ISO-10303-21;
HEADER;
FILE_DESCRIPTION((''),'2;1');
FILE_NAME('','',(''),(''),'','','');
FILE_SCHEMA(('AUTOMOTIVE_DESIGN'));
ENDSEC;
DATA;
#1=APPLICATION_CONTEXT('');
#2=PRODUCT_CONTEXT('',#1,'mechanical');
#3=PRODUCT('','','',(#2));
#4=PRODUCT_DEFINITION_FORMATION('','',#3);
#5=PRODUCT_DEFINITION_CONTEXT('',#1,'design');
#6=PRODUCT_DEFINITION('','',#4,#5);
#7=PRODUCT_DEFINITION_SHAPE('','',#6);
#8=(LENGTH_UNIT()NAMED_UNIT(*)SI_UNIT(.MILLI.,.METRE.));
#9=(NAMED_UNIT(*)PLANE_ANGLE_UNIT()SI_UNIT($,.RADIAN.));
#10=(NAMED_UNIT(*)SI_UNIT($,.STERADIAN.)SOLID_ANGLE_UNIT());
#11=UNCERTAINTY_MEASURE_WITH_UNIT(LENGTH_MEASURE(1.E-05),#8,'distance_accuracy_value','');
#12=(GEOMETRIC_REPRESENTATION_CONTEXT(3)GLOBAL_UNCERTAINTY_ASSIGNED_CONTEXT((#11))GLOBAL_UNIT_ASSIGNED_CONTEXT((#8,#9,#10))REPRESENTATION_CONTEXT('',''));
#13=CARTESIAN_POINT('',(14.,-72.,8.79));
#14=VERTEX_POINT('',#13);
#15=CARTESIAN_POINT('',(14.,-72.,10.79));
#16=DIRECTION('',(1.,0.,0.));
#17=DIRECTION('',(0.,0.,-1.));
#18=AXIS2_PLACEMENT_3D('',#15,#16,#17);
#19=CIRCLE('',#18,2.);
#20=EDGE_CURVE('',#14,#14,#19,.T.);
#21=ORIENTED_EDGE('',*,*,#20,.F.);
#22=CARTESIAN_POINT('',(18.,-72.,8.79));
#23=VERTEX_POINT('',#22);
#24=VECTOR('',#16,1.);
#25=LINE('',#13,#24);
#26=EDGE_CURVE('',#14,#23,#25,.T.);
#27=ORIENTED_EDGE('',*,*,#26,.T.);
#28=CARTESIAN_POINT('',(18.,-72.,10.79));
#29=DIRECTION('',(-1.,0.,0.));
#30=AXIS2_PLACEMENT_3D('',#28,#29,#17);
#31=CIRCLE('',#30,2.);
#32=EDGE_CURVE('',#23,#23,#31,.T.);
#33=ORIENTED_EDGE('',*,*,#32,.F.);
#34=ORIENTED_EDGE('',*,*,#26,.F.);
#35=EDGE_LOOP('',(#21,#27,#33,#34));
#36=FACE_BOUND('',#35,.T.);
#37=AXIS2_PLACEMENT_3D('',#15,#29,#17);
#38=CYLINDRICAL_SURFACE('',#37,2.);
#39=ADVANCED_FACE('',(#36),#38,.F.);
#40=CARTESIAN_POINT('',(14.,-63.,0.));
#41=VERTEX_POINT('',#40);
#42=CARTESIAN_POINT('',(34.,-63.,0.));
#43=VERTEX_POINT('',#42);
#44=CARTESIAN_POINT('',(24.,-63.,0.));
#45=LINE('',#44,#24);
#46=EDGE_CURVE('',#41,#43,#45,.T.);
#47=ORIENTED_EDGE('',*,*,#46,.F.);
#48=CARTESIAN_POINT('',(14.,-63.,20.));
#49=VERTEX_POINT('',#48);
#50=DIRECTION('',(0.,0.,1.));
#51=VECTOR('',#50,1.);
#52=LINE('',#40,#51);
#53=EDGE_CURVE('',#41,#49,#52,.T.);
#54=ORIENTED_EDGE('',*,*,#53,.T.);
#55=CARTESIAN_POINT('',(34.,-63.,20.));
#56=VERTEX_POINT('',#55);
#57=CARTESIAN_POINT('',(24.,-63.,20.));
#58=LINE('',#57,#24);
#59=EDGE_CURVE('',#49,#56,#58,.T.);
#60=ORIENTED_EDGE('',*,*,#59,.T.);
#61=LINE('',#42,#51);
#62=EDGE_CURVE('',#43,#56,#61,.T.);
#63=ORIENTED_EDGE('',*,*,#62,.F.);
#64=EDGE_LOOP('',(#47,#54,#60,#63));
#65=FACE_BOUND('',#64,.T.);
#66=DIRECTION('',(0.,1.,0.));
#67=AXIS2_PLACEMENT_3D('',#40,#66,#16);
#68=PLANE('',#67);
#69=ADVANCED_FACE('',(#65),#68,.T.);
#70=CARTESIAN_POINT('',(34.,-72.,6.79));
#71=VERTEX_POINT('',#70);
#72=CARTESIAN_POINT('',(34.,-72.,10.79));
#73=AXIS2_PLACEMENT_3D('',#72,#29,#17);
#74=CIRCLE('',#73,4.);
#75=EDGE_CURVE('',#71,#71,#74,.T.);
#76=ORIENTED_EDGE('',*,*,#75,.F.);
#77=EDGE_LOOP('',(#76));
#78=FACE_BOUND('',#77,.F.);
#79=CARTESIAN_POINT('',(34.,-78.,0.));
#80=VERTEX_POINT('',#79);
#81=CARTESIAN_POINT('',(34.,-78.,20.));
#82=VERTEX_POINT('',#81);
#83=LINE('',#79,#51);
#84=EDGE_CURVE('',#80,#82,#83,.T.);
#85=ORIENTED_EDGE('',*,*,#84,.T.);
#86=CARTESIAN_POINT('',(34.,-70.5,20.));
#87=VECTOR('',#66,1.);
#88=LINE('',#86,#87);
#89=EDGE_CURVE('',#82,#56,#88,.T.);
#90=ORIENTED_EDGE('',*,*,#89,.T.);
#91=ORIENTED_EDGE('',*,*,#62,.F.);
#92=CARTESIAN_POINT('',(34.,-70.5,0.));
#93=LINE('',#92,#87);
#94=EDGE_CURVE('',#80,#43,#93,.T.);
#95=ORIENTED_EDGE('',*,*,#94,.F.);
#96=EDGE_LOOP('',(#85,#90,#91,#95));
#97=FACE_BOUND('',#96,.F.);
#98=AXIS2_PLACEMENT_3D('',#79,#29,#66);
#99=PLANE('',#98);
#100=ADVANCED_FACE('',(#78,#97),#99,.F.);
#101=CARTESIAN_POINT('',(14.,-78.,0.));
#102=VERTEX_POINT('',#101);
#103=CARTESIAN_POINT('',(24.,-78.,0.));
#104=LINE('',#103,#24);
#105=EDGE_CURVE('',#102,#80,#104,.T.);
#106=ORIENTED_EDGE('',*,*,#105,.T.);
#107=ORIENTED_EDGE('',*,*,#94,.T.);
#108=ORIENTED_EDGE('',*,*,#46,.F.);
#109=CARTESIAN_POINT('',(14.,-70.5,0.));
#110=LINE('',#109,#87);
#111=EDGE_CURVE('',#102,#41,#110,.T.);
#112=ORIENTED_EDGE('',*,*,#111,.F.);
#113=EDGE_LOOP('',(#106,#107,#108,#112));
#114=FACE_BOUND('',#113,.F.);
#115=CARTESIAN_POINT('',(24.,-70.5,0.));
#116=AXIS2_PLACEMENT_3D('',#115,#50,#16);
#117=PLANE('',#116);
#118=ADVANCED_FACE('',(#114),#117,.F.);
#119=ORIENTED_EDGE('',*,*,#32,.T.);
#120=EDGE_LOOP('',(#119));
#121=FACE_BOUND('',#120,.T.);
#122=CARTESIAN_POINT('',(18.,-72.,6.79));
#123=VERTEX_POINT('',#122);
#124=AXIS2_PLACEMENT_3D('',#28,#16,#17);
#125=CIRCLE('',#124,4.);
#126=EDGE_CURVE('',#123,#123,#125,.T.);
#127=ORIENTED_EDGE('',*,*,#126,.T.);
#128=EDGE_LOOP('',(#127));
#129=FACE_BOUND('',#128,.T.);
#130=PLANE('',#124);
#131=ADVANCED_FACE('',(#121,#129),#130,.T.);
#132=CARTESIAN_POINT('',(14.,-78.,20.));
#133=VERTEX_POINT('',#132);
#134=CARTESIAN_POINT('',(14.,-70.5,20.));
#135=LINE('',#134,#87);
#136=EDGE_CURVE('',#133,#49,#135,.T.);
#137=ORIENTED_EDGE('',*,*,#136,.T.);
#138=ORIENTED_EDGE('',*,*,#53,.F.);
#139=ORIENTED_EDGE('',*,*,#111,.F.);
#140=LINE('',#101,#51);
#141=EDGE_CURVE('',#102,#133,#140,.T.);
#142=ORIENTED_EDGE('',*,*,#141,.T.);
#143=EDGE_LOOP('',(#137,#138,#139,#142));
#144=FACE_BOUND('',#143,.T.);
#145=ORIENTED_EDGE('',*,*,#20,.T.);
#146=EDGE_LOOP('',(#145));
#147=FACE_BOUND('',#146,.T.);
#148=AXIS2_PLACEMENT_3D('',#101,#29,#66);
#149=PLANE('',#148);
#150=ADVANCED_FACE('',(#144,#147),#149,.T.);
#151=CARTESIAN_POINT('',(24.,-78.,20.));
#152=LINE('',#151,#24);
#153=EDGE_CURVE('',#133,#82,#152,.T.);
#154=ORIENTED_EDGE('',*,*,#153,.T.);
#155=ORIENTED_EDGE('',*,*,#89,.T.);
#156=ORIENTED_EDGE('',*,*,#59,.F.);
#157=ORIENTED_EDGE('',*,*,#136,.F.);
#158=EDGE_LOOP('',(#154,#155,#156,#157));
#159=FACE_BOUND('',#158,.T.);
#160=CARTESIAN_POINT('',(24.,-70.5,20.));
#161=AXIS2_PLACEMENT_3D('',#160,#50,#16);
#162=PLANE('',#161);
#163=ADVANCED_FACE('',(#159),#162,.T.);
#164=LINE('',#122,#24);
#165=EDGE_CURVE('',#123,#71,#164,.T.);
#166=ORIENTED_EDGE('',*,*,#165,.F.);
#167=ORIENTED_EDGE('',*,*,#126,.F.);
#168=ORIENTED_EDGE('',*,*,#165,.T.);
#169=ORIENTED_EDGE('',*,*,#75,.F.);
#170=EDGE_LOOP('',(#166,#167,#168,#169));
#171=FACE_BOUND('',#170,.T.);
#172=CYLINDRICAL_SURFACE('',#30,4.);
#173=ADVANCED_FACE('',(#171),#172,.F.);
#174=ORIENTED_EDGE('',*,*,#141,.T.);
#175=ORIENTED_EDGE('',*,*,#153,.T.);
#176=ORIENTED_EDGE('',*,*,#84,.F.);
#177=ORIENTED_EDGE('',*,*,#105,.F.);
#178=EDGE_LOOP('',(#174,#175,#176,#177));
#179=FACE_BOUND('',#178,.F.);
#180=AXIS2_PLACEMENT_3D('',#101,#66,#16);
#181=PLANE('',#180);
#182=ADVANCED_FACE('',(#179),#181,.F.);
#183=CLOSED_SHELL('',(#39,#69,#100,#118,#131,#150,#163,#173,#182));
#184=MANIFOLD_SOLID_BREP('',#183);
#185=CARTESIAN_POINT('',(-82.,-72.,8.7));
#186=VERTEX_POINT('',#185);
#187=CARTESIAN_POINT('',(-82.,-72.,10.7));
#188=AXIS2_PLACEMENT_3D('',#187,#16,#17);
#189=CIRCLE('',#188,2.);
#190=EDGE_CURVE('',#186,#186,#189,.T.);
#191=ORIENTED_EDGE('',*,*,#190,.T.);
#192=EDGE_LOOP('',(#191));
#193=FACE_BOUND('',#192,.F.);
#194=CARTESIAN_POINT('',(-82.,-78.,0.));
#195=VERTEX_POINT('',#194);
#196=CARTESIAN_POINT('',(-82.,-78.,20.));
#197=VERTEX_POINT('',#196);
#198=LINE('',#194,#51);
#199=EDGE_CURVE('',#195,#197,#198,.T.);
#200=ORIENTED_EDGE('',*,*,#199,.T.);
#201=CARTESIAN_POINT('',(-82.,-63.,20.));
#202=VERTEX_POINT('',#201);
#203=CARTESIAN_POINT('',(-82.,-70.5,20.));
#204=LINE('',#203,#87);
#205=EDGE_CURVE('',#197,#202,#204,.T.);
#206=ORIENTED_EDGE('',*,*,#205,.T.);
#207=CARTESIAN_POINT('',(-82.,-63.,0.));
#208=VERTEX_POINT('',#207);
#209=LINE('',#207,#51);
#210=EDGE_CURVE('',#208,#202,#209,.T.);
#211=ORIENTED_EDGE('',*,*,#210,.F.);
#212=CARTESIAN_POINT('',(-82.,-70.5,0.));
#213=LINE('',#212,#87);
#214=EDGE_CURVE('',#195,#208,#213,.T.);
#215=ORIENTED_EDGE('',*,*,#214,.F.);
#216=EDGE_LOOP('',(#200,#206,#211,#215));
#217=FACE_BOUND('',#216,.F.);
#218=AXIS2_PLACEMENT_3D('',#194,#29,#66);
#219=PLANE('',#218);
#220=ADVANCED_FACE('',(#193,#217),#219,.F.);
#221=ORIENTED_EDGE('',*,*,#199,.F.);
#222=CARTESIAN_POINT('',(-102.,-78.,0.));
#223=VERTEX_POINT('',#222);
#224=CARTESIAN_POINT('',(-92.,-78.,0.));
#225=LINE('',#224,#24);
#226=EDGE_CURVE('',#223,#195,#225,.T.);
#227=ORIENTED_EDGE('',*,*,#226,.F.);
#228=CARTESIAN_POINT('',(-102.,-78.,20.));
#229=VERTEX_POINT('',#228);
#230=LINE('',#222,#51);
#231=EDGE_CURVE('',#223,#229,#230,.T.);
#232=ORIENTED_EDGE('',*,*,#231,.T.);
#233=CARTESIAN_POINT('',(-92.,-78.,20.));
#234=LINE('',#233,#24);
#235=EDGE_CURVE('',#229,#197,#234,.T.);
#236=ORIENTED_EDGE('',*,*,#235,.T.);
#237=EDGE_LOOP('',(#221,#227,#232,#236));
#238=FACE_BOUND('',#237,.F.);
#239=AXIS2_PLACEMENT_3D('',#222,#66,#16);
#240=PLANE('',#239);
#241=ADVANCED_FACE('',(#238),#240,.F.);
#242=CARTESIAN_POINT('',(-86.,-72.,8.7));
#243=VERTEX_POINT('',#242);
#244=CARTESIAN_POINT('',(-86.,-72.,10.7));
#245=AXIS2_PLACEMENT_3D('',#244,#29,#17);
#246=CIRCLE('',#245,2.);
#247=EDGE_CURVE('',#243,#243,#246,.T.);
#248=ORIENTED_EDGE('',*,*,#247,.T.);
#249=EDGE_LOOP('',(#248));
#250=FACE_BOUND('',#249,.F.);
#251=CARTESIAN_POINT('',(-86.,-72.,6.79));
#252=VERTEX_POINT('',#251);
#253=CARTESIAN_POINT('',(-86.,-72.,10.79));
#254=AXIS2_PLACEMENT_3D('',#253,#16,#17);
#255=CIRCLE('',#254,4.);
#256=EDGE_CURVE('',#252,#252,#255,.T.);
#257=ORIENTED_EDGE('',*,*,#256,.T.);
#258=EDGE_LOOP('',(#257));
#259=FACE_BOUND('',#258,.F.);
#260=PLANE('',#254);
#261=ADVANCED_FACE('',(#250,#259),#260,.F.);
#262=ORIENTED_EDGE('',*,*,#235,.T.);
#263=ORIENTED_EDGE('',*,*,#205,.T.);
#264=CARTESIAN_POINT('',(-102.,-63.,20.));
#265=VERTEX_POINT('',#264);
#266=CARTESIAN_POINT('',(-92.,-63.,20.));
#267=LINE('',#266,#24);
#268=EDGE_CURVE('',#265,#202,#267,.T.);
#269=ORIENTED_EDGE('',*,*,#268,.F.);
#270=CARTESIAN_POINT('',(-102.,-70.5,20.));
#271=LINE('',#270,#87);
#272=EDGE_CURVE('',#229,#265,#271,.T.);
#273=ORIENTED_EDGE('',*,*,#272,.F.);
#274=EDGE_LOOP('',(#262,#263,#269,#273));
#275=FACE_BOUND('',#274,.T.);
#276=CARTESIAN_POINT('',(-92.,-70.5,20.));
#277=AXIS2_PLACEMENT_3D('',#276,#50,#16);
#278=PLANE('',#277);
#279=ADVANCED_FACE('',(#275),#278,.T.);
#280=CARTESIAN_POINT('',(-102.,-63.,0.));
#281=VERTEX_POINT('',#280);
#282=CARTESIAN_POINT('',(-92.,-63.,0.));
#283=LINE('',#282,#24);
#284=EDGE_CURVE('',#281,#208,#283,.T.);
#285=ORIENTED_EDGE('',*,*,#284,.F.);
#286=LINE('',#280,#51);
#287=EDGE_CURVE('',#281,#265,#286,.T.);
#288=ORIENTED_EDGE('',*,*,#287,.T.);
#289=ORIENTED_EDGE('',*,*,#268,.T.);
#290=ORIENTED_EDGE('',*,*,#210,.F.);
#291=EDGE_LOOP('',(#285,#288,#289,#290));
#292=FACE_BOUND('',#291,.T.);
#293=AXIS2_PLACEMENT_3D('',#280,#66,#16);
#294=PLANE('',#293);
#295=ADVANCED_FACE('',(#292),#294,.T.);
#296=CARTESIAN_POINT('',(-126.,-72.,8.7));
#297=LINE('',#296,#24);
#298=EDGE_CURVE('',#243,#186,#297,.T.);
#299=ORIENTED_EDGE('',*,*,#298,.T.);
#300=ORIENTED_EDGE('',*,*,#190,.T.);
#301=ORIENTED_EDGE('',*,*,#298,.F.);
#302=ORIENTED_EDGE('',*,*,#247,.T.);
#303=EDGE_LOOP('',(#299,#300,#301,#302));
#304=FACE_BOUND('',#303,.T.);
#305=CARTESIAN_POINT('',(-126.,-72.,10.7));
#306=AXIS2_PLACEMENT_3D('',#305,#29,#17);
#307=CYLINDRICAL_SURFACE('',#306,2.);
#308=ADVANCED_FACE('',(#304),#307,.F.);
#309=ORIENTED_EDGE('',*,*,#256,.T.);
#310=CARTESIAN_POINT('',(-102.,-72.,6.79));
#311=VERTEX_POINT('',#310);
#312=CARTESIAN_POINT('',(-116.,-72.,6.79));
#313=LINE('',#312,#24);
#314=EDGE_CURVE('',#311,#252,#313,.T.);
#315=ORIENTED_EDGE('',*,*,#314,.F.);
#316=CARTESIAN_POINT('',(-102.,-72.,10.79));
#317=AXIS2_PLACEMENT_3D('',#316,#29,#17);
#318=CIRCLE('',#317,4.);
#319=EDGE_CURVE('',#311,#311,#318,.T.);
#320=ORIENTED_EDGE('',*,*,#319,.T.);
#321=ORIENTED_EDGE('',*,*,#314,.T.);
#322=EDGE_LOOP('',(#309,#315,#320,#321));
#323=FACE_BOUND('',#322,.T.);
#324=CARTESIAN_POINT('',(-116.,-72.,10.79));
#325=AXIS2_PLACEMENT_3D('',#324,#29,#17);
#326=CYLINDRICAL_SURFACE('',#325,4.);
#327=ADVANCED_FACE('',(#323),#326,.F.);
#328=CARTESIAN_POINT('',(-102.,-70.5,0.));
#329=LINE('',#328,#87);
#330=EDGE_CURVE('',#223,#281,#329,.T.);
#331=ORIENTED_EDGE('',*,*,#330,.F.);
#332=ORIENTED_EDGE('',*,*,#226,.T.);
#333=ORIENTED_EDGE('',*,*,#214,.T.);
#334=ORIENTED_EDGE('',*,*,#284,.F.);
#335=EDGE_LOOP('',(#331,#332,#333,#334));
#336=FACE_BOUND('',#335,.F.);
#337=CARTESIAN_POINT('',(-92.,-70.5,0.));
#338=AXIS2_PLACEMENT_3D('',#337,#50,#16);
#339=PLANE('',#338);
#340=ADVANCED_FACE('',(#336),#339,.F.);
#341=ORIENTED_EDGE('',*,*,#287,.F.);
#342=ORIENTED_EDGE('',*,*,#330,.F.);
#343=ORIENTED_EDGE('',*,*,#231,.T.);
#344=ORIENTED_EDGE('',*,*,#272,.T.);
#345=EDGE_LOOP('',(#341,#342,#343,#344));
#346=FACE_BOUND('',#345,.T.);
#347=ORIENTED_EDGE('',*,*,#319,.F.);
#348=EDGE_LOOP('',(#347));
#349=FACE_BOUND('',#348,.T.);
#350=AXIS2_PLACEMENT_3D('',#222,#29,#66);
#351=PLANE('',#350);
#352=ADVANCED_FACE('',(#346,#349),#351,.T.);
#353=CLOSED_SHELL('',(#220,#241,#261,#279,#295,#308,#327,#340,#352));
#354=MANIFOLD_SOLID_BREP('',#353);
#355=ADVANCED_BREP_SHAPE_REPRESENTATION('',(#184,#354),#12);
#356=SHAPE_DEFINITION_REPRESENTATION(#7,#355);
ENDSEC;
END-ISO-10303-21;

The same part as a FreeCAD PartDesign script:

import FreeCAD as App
import Part
import Sketcher
Q = App.Units.Quantity

doc = App.newDocument("Part")
body = doc.addObject("PartDesign::Body", "Body")

sketch1 = body.newObject("Sketcher::SketchObject", "Sketch")
sketch1.AttachmentSupport = (doc.getObject("YZ_Plane"), [""])
sketch1.MapMode = "FlatFace"
sketch1.AttachmentOffset = App.Placement(App.Vector(0, 0, -126), App.Rotation())
sketch1.addGeometry(Part.Circle(App.Vector(-72, 10.7, 0), App.Vector(0, 0, 1), 2), False)
sketch1.addConstraint([
    Sketcher.Constraint("Diameter", 0, Q("4 mm")),
    Sketcher.Constraint("DistanceX", 0, 3, -1, 1, Q("72 mm")),
    Sketcher.Constraint("DistanceY", -1, 1, 0, 3, Q("10.7 mm")),
])
pad1 = body.newObject("PartDesign::Pad", "Pad")
pad1.Profile = sketch1
pad1.Length = 44
body2 = doc.addObject("PartDesign::Body", "Body001")

sketch2 = body2.newObject("Sketcher::SketchObject", "Sketch001")
sketch2.AttachmentSupport = (doc.getObject("YZ_Plane001"), [""])
sketch2.MapMode = "FlatFace"
sketch2.AttachmentOffset = App.Placement(App.Vector(0, 0, -116), App.Rotation())
sketch2.addGeometry(Part.Circle(App.Vector(-72, 10.8, 0), App.Vector(0, 0, 1), 4), False)
sketch2.addConstraint([
    Sketcher.Constraint("Diameter", 0, Q("8 mm")),
    Sketcher.Constraint("DistanceX", 0, 3, -1, 1, Q("72 mm")),
    Sketcher.Constraint("DistanceY", -1, 1, 0, 3, Q("10.79 mm")),
])
pad2 = body2.newObject("PartDesign::Pad", "Pad001")
pad2.Profile = sketch2
pad2.Length = 30
body3 = doc.addObject("PartDesign::Body", "Body002")

sketch3 = body3.newObject("Sketcher::SketchObject", "Sketch002")
sketch3.AttachmentSupport = (doc.getObject("XY_Plane002"), [""])
sketch3.MapMode = "FlatFace"
sketch3.addGeometry([
    Part.LineSegment(App.Vector(-102, -63, 0), App.Vector(-102, -78, 0)),
    Part.LineSegment(App.Vector(-102, -78, 0), App.Vector(-82, -78, 0)),
    Part.LineSegment(App.Vector(-82, -78, 0), App.Vector(-82, -63, 0)),
    Part.LineSegment(App.Vector(-82, -63, 0), App.Vector(-102, -63, 0)),
], False)
sketch3.addConstraint([
    Sketcher.Constraint("Coincident", 0, 2, 1, 1),
    Sketcher.Constraint("Coincident", 1, 2, 2, 1),
    Sketcher.Constraint("Coincident", 2, 2, 3, 1),
    Sketcher.Constraint("Coincident", 3, 2, 0, 1),
    Sketcher.Constraint("Vertical", 0),
    Sketcher.Constraint("Horizontal", 1),
    Sketcher.Constraint("Vertical", 2),
    Sketcher.Constraint("Horizontal", 3),
    Sketcher.Constraint("DistanceX", 1, 1, 1, 2, Q("20 mm")),
    Sketcher.Constraint("DistanceY", 0, 2, 0, 1, Q("15 mm")),
    Sketcher.Constraint("DistanceX", 0, 2, -1, 1, Q("102 mm")),
    Sketcher.Constraint("DistanceY", 0, 2, -1, 1, Q("78 mm")),
])
pad3 = body3.newObject("PartDesign::Pad", "Pad002")
pad3.Profile = sketch3
pad3.Length = 20
doc.recompute()

boolean = body3.newObject("PartDesign::Boolean", "Boolean")
boolean.Type = "Cut"
boolean.addObjects([body2])
doc.recompute()

boolean2 = body3.newObject("PartDesign::Boolean", "Boolean001")
boolean2.Type = "Cut"
boolean2.addObjects([body])
body4 = doc.addObject("PartDesign::Body", "Body003")

sketch4 = body4.newObject("Sketcher::SketchObject", "Sketch003")
sketch4.AttachmentSupport = (doc.getObject("YZ_Plane003"), [""])
sketch4.MapMode = "FlatFace"
sketch4.AttachmentOffset = App.Placement(App.Vector(0, 0, 14), App.Rotation())
sketch4.addGeometry(Part.Circle(App.Vector(-72, 10.8, 0), App.Vector(0, 0, 1), 2), False)
sketch4.addConstraint([
    Sketcher.Constraint("Diameter", 0, Q("4 mm")),
    Sketcher.Constraint("DistanceX", 0, 3, -1, 1, Q("72 mm")),
    Sketcher.Constraint("DistanceY", -1, 1, 0, 3, Q("10.79 mm")),
])
pad4 = body4.newObject("PartDesign::Pad", "Pad003")
pad4.Profile = sketch4
pad4.Length = 44
body5 = doc.addObject("PartDesign::Body", "Body004")

sketch5 = body5.newObject("Sketcher::SketchObject", "Sketch004")
sketch5.AttachmentSupport = (doc.getObject("YZ_Plane004"), [""])
sketch5.MapMode = "FlatFace"
sketch5.AttachmentOffset = App.Placement(App.Vector(0, 0, 18), App.Rotation())
sketch5.addGeometry(Part.Circle(App.Vector(-72, 10.8, 0), App.Vector(0, 0, 1), 4), False)
sketch5.addConstraint([
    Sketcher.Constraint("Diameter", 0, Q("8 mm")),
    Sketcher.Constraint("DistanceX", 0, 3, -1, 1, Q("72 mm")),
    Sketcher.Constraint("DistanceY", -1, 1, 0, 3, Q("10.79 mm")),
])
pad5 = body5.newObject("PartDesign::Pad", "Pad004")
pad5.Profile = sketch5
pad5.Length = 30
body6 = doc.addObject("PartDesign::Body", "Body005")
body6.AllowCompound = True

sketch6 = body6.newObject("Sketcher::SketchObject", "Sketch005")
sketch6.AttachmentSupport = (doc.getObject("XY_Plane005"), [""])
sketch6.MapMode = "FlatFace"
sketch6.addGeometry([
    Part.LineSegment(App.Vector(14, -63, 0), App.Vector(14, -78, 0)),
    Part.LineSegment(App.Vector(14, -78, 0), App.Vector(34, -78, 0)),
    Part.LineSegment(App.Vector(34, -78, 0), App.Vector(34, -63, 0)),
    Part.LineSegment(App.Vector(34, -63, 0), App.Vector(14, -63, 0)),
], False)
sketch6.addConstraint([
    Sketcher.Constraint("Coincident", 0, 2, 1, 1),
    Sketcher.Constraint("Coincident", 1, 2, 2, 1),
    Sketcher.Constraint("Coincident", 2, 2, 3, 1),
    Sketcher.Constraint("Coincident", 3, 2, 0, 1),
    Sketcher.Constraint("Vertical", 0),
    Sketcher.Constraint("Horizontal", 1),
    Sketcher.Constraint("Vertical", 2),
    Sketcher.Constraint("Horizontal", 3),
    Sketcher.Constraint("DistanceX", 1, 1, 1, 2, Q("20 mm")),
    Sketcher.Constraint("DistanceY", 0, 2, 0, 1, Q("15 mm")),
    Sketcher.Constraint("DistanceX", -1, 1, 0, 2, Q("14 mm")),
    Sketcher.Constraint("DistanceY", 0, 2, -1, 1, Q("78 mm")),
])
pad6 = body6.newObject("PartDesign::Pad", "Pad005")
pad6.Profile = sketch6
pad6.Length = 20
doc.recompute()

boolean3 = body6.newObject("PartDesign::Boolean", "Boolean002")
boolean3.Type = "Cut"
boolean3.addObjects([body5])
doc.recompute()

boolean4 = body6.newObject("PartDesign::Boolean", "Boolean003")
boolean4.Type = "Cut"
boolean4.addObjects([body4])
doc.recompute()

boolean5 = body6.newObject("PartDesign::Boolean", "Boolean004")
boolean5.Type = "Fuse"
boolean5.addObjects([body3])

doc.recompute()
